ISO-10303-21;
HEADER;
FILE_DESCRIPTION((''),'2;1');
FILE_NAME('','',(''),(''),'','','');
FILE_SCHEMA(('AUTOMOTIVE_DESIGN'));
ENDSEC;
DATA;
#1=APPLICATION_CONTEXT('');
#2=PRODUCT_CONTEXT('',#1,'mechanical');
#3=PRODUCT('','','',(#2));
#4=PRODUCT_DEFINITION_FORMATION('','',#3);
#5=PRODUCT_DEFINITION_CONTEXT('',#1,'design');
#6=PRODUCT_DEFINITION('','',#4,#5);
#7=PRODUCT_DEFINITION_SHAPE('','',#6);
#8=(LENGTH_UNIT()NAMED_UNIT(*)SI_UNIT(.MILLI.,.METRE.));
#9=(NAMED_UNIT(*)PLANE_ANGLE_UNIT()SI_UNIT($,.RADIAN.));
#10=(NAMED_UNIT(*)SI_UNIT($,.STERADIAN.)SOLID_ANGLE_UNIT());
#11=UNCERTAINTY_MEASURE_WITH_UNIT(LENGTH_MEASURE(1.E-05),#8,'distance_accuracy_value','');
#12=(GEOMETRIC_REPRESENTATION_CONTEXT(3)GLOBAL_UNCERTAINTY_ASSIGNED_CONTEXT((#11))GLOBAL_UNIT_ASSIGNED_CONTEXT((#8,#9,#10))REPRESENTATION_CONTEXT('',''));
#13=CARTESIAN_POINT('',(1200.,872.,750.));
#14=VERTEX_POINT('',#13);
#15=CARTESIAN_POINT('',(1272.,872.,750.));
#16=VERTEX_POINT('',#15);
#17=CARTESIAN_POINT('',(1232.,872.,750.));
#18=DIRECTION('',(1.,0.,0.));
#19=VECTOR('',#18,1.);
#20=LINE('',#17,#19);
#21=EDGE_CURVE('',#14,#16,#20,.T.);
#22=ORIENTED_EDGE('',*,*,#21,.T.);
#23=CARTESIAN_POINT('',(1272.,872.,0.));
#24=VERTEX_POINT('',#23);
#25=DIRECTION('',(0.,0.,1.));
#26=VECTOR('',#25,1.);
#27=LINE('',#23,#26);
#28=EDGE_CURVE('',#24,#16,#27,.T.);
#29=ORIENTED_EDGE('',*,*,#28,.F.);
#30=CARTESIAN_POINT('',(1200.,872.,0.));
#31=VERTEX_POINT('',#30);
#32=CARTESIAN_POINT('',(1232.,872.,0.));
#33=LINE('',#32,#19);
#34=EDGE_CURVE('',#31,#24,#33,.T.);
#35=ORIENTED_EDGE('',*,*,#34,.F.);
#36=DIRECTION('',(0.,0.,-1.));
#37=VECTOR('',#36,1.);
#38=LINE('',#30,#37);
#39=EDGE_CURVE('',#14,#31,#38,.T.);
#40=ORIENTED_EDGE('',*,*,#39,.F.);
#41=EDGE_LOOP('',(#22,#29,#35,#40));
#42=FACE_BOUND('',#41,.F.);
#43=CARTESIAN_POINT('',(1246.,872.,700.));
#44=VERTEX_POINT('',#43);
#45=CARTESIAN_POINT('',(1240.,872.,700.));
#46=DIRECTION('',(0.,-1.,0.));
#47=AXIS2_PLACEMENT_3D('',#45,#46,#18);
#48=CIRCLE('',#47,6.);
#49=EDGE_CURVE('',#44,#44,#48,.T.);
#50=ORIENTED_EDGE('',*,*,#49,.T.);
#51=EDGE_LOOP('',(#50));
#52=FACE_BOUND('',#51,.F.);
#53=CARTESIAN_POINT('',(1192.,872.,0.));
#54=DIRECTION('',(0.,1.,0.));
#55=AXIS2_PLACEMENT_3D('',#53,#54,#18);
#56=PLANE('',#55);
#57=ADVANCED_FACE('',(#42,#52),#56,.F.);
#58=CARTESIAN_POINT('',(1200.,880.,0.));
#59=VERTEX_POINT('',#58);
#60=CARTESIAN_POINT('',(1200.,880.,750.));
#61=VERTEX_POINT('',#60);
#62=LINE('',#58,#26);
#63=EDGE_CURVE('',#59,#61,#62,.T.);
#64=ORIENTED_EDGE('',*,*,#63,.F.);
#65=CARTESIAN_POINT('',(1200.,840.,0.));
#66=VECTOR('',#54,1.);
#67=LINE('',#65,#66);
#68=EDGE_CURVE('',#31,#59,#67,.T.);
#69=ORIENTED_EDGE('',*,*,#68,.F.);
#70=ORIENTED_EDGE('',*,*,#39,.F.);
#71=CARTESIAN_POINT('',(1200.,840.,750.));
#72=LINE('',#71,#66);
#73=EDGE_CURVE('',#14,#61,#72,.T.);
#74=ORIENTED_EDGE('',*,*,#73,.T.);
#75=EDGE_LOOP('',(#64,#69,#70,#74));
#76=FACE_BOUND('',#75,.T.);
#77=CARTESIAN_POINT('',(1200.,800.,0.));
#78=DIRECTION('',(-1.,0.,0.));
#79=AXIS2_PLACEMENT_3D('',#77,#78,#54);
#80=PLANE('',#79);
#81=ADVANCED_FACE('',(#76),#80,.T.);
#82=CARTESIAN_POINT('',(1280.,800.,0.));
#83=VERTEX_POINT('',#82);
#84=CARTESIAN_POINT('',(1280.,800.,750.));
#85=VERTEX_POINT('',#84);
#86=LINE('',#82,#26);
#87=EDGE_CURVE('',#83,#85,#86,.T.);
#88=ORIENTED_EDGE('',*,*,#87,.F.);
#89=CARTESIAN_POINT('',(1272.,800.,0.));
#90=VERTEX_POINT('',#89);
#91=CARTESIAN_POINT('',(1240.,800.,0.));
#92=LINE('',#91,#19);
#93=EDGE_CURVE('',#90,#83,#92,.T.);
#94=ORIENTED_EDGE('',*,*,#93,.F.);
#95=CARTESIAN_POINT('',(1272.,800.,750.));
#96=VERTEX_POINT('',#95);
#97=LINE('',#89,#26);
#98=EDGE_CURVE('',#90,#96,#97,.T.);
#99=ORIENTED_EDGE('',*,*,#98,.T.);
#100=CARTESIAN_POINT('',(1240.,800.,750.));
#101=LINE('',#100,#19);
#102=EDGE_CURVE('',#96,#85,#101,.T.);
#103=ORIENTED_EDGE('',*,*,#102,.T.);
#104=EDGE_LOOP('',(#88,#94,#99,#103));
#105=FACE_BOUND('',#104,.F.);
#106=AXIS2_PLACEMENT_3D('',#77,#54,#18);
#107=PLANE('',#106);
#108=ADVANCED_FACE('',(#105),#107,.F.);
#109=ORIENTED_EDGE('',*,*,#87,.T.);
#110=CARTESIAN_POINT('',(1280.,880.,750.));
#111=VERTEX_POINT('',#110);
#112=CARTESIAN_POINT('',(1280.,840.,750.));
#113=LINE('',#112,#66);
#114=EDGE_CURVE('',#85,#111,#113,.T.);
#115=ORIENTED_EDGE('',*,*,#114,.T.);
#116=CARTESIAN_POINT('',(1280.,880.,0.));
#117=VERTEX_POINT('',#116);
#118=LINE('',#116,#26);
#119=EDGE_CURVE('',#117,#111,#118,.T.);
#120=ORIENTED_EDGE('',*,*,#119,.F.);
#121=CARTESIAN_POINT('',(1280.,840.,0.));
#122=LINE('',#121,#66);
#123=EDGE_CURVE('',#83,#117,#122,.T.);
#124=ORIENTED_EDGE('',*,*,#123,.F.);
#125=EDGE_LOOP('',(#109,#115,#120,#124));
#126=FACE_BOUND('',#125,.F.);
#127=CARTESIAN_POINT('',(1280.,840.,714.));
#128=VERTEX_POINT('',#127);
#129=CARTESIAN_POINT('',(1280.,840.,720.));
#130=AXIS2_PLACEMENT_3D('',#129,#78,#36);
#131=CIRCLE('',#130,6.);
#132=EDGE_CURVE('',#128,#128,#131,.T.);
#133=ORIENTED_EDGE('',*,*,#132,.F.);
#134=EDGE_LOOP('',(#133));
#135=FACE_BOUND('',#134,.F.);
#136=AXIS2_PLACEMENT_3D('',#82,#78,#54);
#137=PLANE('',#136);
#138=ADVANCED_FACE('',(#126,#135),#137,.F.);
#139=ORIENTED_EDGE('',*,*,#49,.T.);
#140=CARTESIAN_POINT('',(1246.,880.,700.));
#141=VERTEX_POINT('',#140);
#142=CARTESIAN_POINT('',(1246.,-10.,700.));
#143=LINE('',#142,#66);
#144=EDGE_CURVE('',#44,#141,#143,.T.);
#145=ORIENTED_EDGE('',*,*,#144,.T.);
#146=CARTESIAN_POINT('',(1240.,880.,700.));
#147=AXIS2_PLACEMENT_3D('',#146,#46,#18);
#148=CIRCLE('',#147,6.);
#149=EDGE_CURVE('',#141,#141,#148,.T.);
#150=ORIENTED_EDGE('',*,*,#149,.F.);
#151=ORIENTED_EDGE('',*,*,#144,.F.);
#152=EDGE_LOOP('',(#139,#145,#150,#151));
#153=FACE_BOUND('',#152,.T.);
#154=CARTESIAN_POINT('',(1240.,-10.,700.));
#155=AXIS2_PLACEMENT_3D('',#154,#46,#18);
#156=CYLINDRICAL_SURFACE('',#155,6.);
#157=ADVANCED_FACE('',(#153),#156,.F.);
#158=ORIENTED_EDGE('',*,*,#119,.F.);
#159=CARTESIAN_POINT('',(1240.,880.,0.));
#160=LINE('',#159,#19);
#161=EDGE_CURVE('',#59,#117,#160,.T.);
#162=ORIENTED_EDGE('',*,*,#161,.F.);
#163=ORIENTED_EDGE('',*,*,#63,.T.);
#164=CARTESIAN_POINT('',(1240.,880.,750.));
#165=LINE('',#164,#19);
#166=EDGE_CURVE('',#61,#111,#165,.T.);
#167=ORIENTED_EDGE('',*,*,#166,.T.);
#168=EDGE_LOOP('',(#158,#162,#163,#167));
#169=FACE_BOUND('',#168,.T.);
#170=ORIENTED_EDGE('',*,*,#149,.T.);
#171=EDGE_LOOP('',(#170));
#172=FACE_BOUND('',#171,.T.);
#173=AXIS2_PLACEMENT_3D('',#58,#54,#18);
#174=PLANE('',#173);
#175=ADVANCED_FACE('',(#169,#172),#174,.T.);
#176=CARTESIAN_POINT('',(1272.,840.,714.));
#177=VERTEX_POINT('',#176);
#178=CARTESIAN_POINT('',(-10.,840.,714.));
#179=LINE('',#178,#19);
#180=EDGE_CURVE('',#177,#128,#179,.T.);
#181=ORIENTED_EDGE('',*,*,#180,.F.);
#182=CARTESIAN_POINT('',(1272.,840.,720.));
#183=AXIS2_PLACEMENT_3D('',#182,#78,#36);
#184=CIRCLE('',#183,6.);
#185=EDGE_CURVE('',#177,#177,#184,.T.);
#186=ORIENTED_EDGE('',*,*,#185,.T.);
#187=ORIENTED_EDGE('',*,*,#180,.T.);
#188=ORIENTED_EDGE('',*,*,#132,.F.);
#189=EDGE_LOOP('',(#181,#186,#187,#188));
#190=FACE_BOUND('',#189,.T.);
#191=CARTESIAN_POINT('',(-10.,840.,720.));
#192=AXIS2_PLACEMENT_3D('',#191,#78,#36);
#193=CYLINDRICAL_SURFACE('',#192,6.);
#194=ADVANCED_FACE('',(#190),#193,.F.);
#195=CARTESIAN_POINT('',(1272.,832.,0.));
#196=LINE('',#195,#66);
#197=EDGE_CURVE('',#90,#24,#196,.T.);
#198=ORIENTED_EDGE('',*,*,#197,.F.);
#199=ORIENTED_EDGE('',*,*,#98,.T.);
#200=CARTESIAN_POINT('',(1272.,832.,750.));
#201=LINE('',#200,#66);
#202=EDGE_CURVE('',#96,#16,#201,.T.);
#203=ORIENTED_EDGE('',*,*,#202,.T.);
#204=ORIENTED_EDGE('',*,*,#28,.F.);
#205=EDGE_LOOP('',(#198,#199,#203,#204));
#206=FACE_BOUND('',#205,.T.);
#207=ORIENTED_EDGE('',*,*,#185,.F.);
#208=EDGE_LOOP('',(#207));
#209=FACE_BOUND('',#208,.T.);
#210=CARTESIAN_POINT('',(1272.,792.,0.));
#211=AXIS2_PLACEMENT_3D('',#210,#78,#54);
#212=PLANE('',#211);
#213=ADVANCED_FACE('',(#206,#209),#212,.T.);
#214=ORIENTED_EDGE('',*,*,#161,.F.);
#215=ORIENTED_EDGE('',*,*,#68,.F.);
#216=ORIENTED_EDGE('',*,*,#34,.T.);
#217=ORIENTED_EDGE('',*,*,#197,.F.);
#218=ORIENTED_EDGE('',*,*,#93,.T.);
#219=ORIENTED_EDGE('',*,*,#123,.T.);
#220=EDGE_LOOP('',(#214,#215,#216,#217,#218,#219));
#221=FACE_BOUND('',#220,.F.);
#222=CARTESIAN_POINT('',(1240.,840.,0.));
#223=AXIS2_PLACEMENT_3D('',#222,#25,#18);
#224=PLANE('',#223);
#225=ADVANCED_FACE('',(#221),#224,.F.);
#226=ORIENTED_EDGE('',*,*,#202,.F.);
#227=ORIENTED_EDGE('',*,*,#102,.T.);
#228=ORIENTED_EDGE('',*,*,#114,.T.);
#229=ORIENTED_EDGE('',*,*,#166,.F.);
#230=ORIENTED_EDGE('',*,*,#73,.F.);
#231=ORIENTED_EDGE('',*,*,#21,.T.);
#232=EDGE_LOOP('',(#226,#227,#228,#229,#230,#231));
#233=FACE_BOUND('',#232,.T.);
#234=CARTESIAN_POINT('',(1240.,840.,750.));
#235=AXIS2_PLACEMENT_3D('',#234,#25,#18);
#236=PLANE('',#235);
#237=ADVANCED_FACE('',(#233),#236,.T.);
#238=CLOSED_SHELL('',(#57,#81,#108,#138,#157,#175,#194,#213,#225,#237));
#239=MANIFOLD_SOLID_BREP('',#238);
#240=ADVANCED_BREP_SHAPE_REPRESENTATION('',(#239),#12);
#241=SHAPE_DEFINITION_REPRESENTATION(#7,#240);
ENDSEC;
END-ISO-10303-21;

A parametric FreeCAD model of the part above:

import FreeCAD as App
import Part
import Sketcher
from FreeCAD import Vector
Q = App.Units.Quantity


def add_polygon(sketch, points):
    """Adds a closed chain of lines whose ends are joined by coincident constraints."""
    first, n = sketch.GeometryCount, len(points)
    for a, b in zip(points, points[1:] + points[:1]):
        sketch.addGeometry(Part.LineSegment(App.Vector(*a, 0), App.Vector(*b, 0)), False)
    for i in range(n):
        sketch.addConstraint(Sketcher.Constraint("Coincident", first + i, 2, first + (i + 1) % n, 1))

doc = App.newDocument("Part")
params = doc.addObject("Spreadsheet::Sheet", "Params")
for row, (alias, value) in enumerate([
    ("sketch1_diameter", "12 mm"),
    ("pad1_length", "900 mm"),
    ("sketch2_diameter", "12 mm"),
    ("pad2_length", "1300 mm"),
    ("sketch3_width", "80 mm"),
    ("pad3_length", "750 mm"),
    ("sketch4_width", "80 mm"),
    ("pad4_length", "750 mm"),
], start=1):
    params.set(f"A{row}", alias)
    params.set(f"B{row}", "=" + value)
    params.setAlias(f"B{row}", alias)

body = doc.addObject("PartDesign::Body", "Body")

sketch1 = body.newObject("Sketcher::SketchObject", "Sketch")
sketch1.AttachmentSupport = (doc.getObject("XZ_Plane"), [""])
sketch1.MapMode = "FlatFace"
sketch1.AttachmentOffset = App.Placement(Vector(0, 0, 10), App.Rotation())
sketch1.addGeometry(Part.Circle(Vector(1240, 700, 0), Vector(0, 0, 1), 6), False)
sketch1.addConstraint([
    Sketcher.Constraint("Diameter", 0, Q("12 mm")),
    Sketcher.Constraint("DistanceX", -1, 1, 0, 3, Q("1240 mm")),
    Sketcher.Constraint("DistanceY", -1, 1, 0, 3, Q("700 mm")),
])
sketch1.setExpression("Constraints[0]", "Params.sketch1_diameter")
pad1 = body.newObject("PartDesign::Pad", "Pad")
pad1.Profile = sketch1
pad1.setExpression("Length", "Params.pad1_length")
pad1.Reversed = True
body2 = doc.addObject("PartDesign::Body", "Body001")

sketch2 = body2.newObject("Sketcher::SketchObject", "Sketch001")
sketch2.AttachmentSupport = (doc.getObject("YZ_Plane001"), [""])
sketch2.MapMode = "FlatFace"
sketch2.AttachmentOffset = App.Placement(Vector(0, 0, -10), App.Rotation())
sketch2.addGeometry(Part.Circle(Vector(840, 720, 0), Vector(0, 0, 1), 6), False)
sketch2.addConstraint([
    Sketcher.Constraint("Diameter", 0, Q("12 mm")),
    Sketcher.Constraint("DistanceX", -1, 1, 0, 3, Q("840 mm")),
    Sketcher.Constraint("DistanceY", -1, 1, 0, 3, Q("720 mm")),
])
sketch2.setExpression("Constraints[0]", "Params.sketch2_diameter")
pad2 = body2.newObject("PartDesign::Pad", "Pad001")
pad2.Profile = sketch2
pad2.setExpression("Length", "Params.pad2_length")
body3 = doc.addObject("PartDesign::Body", "Body002")

sketch3 = body3.newObject("Sketcher::SketchObject", "Sketch002")
sketch3.AttachmentSupport = (doc.getObject("XY_Plane002"), [""])
sketch3.MapMode = "FlatFace"
add_polygon(sketch3, [(1192, 872), (1192, 792), (1272, 792), (1272, 872)])
sketch3.addConstraint([
    Sketcher.Constraint("Vertical", 0),
    Sketcher.Constraint("Horizontal", 1),
    Sketcher.Constraint("Vertical", 2),
    Sketcher.Constraint("Horizontal", 3),
    Sketcher.Constraint("Equal", 3, 0),
    Sketcher.Constraint("DistanceX", 1, 1, 1, 2, Q("80 mm")),
    Sketcher.Constraint("DistanceX", -1, 1, 0, 2, Q("1192 mm")),
    Sketcher.Constraint("DistanceY", -1, 1, 0, 2, Q("792 mm")),
])
sketch3.setExpression("Constraints[9]", "Params.sketch3_width")
pad3 = body3.newObject("PartDesign::Pad", "Pad002")
pad3.Profile = sketch3
pad3.setExpression("Length", "Params.pad3_length")
body4 = doc.addObject("PartDesign::Body", "Body003")

sketch4 = body4.newObject("Sketcher::SketchObject", "Sketch003")
sketch4.AttachmentSupport = (doc.getObject("XY_Plane003"), [""])
sketch4.MapMode = "FlatFace"
add_polygon(sketch4, [(1200, 880), (1200, 800), (1280, 800), (1280, 880)])
sketch4.addConstraint([
    Sketcher.Constraint("Vertical", 0),
    Sketcher.Constraint("Horizontal", 1),
    Sketcher.Constraint("Vertical", 2),
    Sketcher.Constraint("Horizontal", 3),
    Sketcher.Constraint("Equal", 3, 0),
    Sketcher.Constraint("DistanceX", 1, 1, 1, 2, Q("80 mm")),
    Sketcher.Constraint("DistanceX", -1, 1, 0, 2, Q("1200 mm")),
    Sketcher.Constraint("DistanceY", -1, 1, 0, 2, Q("800 mm")),
])
sketch4.setExpression("Constraints[9]", "Params.sketch4_width")
pad4 = body4.newObject("PartDesign::Pad", "Pad003")
pad4.Profile = sketch4
pad4.setExpression("Length", "Params.pad4_length")
doc.recompute()

boolean = body4.newObject("PartDesign::Boolean", "Boolean")
boolean.Type = "Cut"
boolean.addObjects([body3])
doc.recompute()

boolean2 = body4.newObject("PartDesign::Boolean", "Boolean001")
boolean2.Type = "Cut"
boolean2.addObjects([body2])
doc.recompute()

boolean3 = body4.newObject("PartDesign::Boolean", "Boolean002")
boolean3.Type = "Cut"
boolean3.addObjects([body])

doc.recompute()
